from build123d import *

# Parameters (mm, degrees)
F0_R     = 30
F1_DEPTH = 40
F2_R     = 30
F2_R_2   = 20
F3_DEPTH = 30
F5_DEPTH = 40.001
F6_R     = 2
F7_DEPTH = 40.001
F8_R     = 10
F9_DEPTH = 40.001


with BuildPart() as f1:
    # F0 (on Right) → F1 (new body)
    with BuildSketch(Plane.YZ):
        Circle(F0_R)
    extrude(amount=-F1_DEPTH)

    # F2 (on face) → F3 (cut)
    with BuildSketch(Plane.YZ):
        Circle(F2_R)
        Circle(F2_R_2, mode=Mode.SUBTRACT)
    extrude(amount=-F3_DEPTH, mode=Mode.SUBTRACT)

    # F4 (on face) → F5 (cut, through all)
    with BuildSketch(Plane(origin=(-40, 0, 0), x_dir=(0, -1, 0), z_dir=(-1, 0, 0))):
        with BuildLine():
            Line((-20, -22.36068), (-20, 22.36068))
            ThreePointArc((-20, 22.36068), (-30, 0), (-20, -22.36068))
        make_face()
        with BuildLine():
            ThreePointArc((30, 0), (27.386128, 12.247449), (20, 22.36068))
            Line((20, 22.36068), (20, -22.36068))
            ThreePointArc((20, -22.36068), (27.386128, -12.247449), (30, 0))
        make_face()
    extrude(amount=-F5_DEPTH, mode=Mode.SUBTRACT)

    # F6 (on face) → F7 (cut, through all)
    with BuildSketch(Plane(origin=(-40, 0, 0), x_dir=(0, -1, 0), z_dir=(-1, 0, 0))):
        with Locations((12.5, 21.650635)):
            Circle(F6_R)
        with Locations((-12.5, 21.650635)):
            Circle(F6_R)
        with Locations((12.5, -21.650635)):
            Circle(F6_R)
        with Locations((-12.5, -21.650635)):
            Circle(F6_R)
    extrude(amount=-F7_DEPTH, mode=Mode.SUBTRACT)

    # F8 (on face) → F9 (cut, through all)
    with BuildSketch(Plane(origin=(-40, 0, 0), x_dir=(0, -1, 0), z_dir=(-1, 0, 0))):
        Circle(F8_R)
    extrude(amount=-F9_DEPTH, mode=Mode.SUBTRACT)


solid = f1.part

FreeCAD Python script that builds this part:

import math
import FreeCAD as App
import Part
import Sketcher

V = App.Vector

doc = App.newDocument("Part")
body = doc.addObject("PartDesign::Body", "Body")

sketch1 = doc.addObject("Sketcher::SketchObject", "Sketch")
body.addObject(sketch1)
sketch1.AttachmentSupport = (doc.YZ_Plane, [""])
sketch1.MapMode = "FlatFace"
sketch1.addGeometry(Part.Circle(V(0, 0, 0), V(0, 0, 1), 30), False)
sketch1.addConstraint([
    Sketcher.Constraint("Coincident", 0, 3, -1, 1),
    Sketcher.Constraint("Diameter", 0, 60.0),
])
pad1 = doc.addObject("PartDesign::Pad", "Pad")
body.addObject(pad1)
pad1.Profile = sketch1
pad1.Length = 40
pad1.Reversed = True

sketch2 = doc.addObject("Sketcher::SketchObject", "Sketch001")
body.addObject(sketch2)
sketch2.AttachmentSupport = (doc.YZ_Plane, [""])
sketch2.MapMode = "FlatFace"
sketch2.addGeometry([
    Part.Circle(V(0, 0, 0), V(0, 0, 1), 30),
    Part.Circle(V(0, 0, 0), V(0, 0, 1), 20),
], False)
sketch2.addConstraint([
    Sketcher.Constraint("Coincident", 0, 3, -1, 1),
    Sketcher.Constraint("Coincident", 1, 3, -1, 1),
    Sketcher.Constraint("Diameter", 0, 60.0),
    Sketcher.Constraint("Diameter", 1, 40.0),
])
pocket1 = doc.addObject("PartDesign::Pocket", "Pocket")
body.addObject(pocket1)
pocket1.Profile = sketch2
pocket1.Length = 30

sketch3 = doc.addObject("Sketcher::SketchObject", "Sketch002")
body.addObject(sketch3)
sketch3.AttachmentSupport = (doc.YZ_Plane, [""])
sketch3.MapMode = "FlatFace"
sketch3.AttachmentOffset = App.Placement(V(0, 0, -40), App.Rotation())
sketch3.addGeometry([
    Part.LineSegment(V(20, -22, 0), V(20, 22, 0)),
    Part.ArcOfCircle(Part.Circle(V(0, 0, 0), V(0, 0, 1), 30), math.radians(-48), math.radians(48)),
    Part.ArcOfCircle(Part.Circle(V(0, 0, 0), V(0, 0, 1), 30), math.radians(132), math.radians(180)),
    Part.LineSegment(V(-20, 22, 0), V(-20, -22, 0)),
    Part.ArcOfCircle(Part.Circle(V(0, 0, 0), V(0, 0, 1), 30), math.radians(180), math.radians(228)),
], False)
sketch3.addConstraint([
    Sketcher.Constraint("Coincident", 0, 1, 1, 1),
    Sketcher.Constraint("Coincident", 1, 2, 0, 2),
    Sketcher.Constraint("Coincident", 2, 1, 3, 1),
    Sketcher.Constraint("Coincident", 3, 2, 4, 2),
    Sketcher.Constraint("Tangent", 4, 1, 2, 2),
    Sketcher.Constraint("Vertical", 0),
    Sketcher.Constraint("Vertical", 3),
    Sketcher.Constraint("Coincident", 1, 3, -1, 1),
    Sketcher.Constraint("Coincident", 2, 3, -1, 1),
    Sketcher.Constraint("Equal", 1, 2),
    Sketcher.Constraint("Equal", 2, 4),
    Sketcher.Constraint("PointOnObject", 4, 1, -1),
    Sketcher.Constraint("Horizontal", 1, 2, 2, 1),
    Sketcher.Constraint("Radius", 1, 30.000001),
    Sketcher.Constraint("DistanceX", -1, 1, 0, 1, 20.0),
])
pocket2 = doc.addObject("PartDesign::Pocket", "Pocket001")
body.addObject(pocket2)
pocket2.Profile = sketch3
pocket2.Type = "ThroughAll"
pocket2.Reversed = True

sketch4 = doc.addObject("Sketcher::SketchObject", "Sketch003")
body.addObject(sketch4)
sketch4.AttachmentSupport = (doc.YZ_Plane, [""])
sketch4.MapMode = "FlatFace"
sketch4.AttachmentOffset = App.Placement(V(0, 0, -40), App.Rotation())
sketch4.addGeometry([
    Part.Circle(V(-12.5, 21.7, 0), V(0, 0, 1), 2),
    Part.Circle(V(12.5, 21.7, 0), V(0, 0, 1), 2),
    Part.Circle(V(-12.5, -21.7, 0), V(0, 0, 1), 2),
    Part.Circle(V(12.5, -21.7, 0), V(0, 0, 1), 2),
], False)
sketch4.addConstraint([
    Sketcher.Constraint("Equal", 0, 1),
    Sketcher.Constraint("Equal", 1, 2),
    Sketcher.Constraint("Equal", 2, 3),
    Sketcher.Constraint("Symmetric", 1, 3, 2, 3, -1, 1),
    Sketcher.Constraint("Symmetric", 0, 3, 3, 3, -1, 1),
    Sketcher.Constraint("Symmetric", 0, 3, 1, 3, -2),
    Sketcher.Constraint("Diameter", 0, 4.0),
    Sketcher.Constraint("DistanceX", 0, 3, 1, 3, 25.0),
    Sketcher.Constraint("DistanceY", 2, 3, 0, 3, 43.30127),
])
pocket3 = doc.addObject("PartDesign::Pocket", "Pocket002")
body.addObject(pocket3)
pocket3.Profile = sketch4
pocket3.Type = "ThroughAll"
pocket3.Reversed = True

sketch5 = doc.addObject("Sketcher::SketchObject", "Sketch004")
body.addObject(sketch5)
sketch5.AttachmentSupport = (doc.YZ_Plane, [""])
sketch5.MapMode = "FlatFace"
sketch5.AttachmentOffset = App.Placement(V(0, 0, -40), App.Rotation())
sketch5.addGeometry(Part.Circle(V(0, 0, 0), V(0, 0, 1), 10), False)
sketch5.addConstraint([
    Sketcher.Constraint("Coincident", 0, 3, -1, 1),
    Sketcher.Constraint("Diameter", 0, 20.0),
])
pocket4 = doc.addObject("PartDesign::Pocket", "Pocket003")
body.addObject(pocket4)
pocket4.Profile = sketch5
pocket4.Type = "ThroughAll"
pocket4.Reversed = True

doc.recompute()
